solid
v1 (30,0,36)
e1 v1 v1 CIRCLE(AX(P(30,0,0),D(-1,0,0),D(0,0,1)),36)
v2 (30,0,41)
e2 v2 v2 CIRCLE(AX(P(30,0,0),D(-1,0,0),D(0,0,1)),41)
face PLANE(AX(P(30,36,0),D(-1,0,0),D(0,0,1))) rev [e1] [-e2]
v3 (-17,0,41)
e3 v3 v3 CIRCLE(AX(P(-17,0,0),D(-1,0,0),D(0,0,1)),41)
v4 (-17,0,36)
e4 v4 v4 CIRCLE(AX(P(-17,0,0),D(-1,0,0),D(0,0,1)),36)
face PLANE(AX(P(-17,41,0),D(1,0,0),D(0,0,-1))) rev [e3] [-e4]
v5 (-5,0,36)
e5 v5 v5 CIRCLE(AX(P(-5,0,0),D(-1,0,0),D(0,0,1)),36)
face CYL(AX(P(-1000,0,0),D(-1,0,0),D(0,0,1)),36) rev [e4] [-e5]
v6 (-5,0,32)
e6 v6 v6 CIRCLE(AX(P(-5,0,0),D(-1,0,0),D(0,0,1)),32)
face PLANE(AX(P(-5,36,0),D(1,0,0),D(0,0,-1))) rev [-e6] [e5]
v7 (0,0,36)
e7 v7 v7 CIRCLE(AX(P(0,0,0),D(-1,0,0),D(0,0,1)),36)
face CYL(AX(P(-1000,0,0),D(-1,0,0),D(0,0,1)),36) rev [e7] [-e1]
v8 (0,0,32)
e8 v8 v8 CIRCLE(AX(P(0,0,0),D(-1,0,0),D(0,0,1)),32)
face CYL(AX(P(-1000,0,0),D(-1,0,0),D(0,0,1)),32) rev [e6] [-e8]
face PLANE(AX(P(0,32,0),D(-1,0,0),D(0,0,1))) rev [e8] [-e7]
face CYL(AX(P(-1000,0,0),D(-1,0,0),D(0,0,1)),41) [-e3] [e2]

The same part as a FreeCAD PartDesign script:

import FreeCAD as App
import Part
import Sketcher
from FreeCAD import Vector


def add_polygon(sketch, points):
    """Adds a closed chain of lines whose ends are joined by coincident constraints."""
    first, n = sketch.GeometryCount, len(points)
    for a, b in zip(points, points[1:] + points[:1]):
        sketch.addGeometry(Part.LineSegment(App.Vector(*a, 0), App.Vector(*b, 0)), False)
    for i in range(n):
        sketch.addConstraint(Sketcher.Constraint("Coincident", first + i, 2, first + (i + 1) % n, 1))

doc = App.newDocument("Part")
body = doc.addObject("PartDesign::Body", "Body")

# Sketch on XY plane
sketch1 = body.newObject("Sketcher::SketchObject", "Sketch")
sketch1.AttachmentSupport = (doc.getObject("XY_Plane"), [""])
sketch1.MapMode = "FlatFace"
add_polygon(sketch1, [(-5, 32), (0, 32), (0, 36), (30, 36), (30, 41), (-17, 41), (-17, 36), (-5, 36)])  # lines 0-7
sketch1.addConstraint(Sketcher.Constraint("Horizontal", 0))
sketch1.addConstraint(Sketcher.Constraint("Vertical", 1))
sketch1.addConstraint(Sketcher.Constraint("Horizontal", 2))
sketch1.addConstraint(Sketcher.Constraint("Vertical", 3))
sketch1.addConstraint(Sketcher.Constraint("Horizontal", 4))
sketch1.addConstraint(Sketcher.Constraint("Vertical", 5))
sketch1.addConstraint(Sketcher.Constraint("Horizontal", 6))
sketch1.addConstraint(Sketcher.Constraint("Vertical", 7))
sketch1.addConstraint(Sketcher.Constraint("PointOnObject", 0, 2, -2))
sketch1.addConstraint(Sketcher.Constraint("Horizontal", 2, 2, 5, 2))
sketch1.addConstraint(Sketcher.Constraint("Equal", 0, 3))
sketch1.addConstraint(Sketcher.Constraint("DistanceX", 0, 1, 0, 2, 5.0))
sketch1.addConstraint(Sketcher.Constraint("DistanceX", 2, 1, 2, 2, 30.0))
sketch1.addConstraint(Sketcher.Constraint("DistanceX", 4, 2, 4, 1, 47.0))
sketch1.addConstraint(Sketcher.Constraint("DistanceY", 1, 1, 1, 2, 4.0))
sketch1.addConstraint(Sketcher.Constraint("DistanceY", -1, 1, 0, 2, 32.0))
revolution = body.newObject("PartDesign::Revolution", "Revolution")
revolution.Profile = sketch1
revolution.ReferenceAxis = (sketch1, ["H_Axis"])
revolution.Angle = 360

doc.recompute()
